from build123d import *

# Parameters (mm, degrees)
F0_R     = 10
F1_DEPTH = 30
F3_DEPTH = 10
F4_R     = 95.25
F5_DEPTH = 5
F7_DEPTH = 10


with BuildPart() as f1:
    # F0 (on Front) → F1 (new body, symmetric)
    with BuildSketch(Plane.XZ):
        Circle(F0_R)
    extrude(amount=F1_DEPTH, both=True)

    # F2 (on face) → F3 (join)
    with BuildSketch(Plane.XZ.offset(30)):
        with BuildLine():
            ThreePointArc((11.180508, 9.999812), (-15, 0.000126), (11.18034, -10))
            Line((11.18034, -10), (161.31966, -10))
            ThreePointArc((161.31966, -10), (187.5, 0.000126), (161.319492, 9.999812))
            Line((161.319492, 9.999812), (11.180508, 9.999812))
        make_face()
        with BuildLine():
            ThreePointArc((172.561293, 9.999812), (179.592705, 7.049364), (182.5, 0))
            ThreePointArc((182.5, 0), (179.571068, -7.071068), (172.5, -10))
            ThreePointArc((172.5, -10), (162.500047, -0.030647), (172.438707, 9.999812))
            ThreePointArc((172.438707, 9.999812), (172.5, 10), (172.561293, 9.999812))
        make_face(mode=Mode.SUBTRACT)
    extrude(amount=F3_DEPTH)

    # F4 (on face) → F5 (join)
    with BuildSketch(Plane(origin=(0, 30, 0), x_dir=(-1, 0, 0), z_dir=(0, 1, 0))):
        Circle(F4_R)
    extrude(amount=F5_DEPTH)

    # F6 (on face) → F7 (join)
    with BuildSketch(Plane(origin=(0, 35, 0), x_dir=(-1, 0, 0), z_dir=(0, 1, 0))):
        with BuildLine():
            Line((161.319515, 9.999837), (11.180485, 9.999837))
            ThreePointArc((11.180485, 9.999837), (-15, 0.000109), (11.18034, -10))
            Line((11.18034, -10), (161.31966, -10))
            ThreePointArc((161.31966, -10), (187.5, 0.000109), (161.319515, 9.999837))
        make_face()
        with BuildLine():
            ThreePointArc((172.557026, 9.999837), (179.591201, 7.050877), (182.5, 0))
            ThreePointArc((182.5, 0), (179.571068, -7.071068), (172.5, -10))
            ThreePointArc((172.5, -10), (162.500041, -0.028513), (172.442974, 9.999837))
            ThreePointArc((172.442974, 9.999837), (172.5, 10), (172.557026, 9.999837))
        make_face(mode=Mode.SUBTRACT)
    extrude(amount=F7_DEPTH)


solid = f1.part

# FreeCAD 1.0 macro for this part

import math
import FreeCAD as App
import Part
import Sketcher
from FreeCAD import Vector

doc = App.newDocument("Part")
body = doc.addObject("PartDesign::Body", "Body")

# Sketch on XZ plane
sketch1 = body.newObject("Sketcher::SketchObject", "Sketch")
sketch1.AttachmentSupport = (doc.getObject("XZ_Plane"), [""])
sketch1.MapMode = "FlatFace"
sketch1.addGeometry(Part.Circle(Vector(0, 0, 0), Vector(0, 0, 1), 10), False)
sketch1.addConstraint([
    Sketcher.Constraint("Coincident", 0, 3, -1, 1),
    Sketcher.Constraint("Diameter", 0, 20.0),
])
pad1 = body.newObject("PartDesign::Pad", "Pad")
pad1.Profile = sketch1
pad1.Length = 60
pad1.Midplane = True

# Sketch on XZ plane
sketch2 = body.newObject("Sketcher::SketchObject", "Sketch001")
sketch2.AttachmentSupport = (doc.getObject("XZ_Plane"), [""])
sketch2.MapMode = "FlatFace"
sketch2.AttachmentOffset = App.Placement(Vector(0, 0, 30), App.Rotation())
sketch2.addGeometry([
    Part.ArcOfCircle(Part.Circle(Vector(0, 0, 0), Vector(0, 0, 1), 15), math.radians(41.809352), math.radians(318.189686)),  # 0
    Part.LineSegment(Vector(11.18034, -10, 0), Vector(161.31966, -10, 0)),  # 1
    Part.ArcOfCircle(Part.Circle(Vector(172.5, 0, 0), Vector(0, 0, 1), 15), math.radians(-138.189686), math.radians(138.190648)),  # 2
    Part.LineSegment(Vector(161.319492, 9.999812, 0), Vector(11.180508, 9.999812, 0)),  # 3
    Part.ArcOfCircle(Part.Circle(Vector(172.5, 0.008332, 0), Vector(0, 0, 1), 9.991668), math.radians(89.648522), math.radians(90.351478)),  # 4
    Part.ArcOfCircle(Part.Circle(Vector(172.5, 0, 0), Vector(0, 0, 1), 10), math.radians(0.000001), math.radians(89.648814)),  # 5
    Part.ArcOfCircle(Part.Circle(Vector(172.500001, -0.000001, 0), Vector(0, 0, 1), 9.999999), math.radians(-90.000004), math.radians(0.000004)),  # 6
    Part.ArcOfCircle(Part.Circle(Vector(172.5, 0, 0), Vector(0, 0, 1), 10), math.radians(90.351185), math.radians(270)),  # 7
], False)
sketch2.addConstraint([
    Sketcher.Constraint("Coincident", 0, 2, 1, 1),
    Sketcher.Constraint("Coincident", 1, 2, 2, 1),
    Sketcher.Constraint("Coincident", 2, 2, 3, 1),
    Sketcher.Constraint("Coincident", 3, 2, 0, 1),
    Sketcher.Constraint("Coincident", 4, 1, 5, 2),
    Sketcher.Constraint("Tangent", 5, 1, 6, 2),
    Sketcher.Constraint("Tangent", 6, 1, 7, 2),
    Sketcher.Constraint("Coincident", 7, 1, 4, 2),
    Sketcher.Constraint("Horizontal", 1),
    Sketcher.Constraint("Horizontal", 3),
    Sketcher.Constraint("Coincident", 0, 3, -1, 1),
    Sketcher.Constraint("Coincident", 5, 3, 2, 3),
    Sketcher.Constraint("Coincident", 7, 3, 2, 3),
    Sketcher.Constraint("Equal", 0, 2),
    Sketcher.Constraint("PointOnObject", 2, 3, -1),
    Sketcher.Constraint("PointOnObject", 5, 1, -1),
    Sketcher.Constraint("Horizontal", 3, 2, 4, 1),
    Sketcher.Constraint("Horizontal", 1, 2, 6, 1),
    Sketcher.Constraint("Horizontal", 4, 1, 7, 1),
    Sketcher.Constraint("Vertical", 7, 3, 6, 1),
    Sketcher.Constraint("Radius", 0, 15.0),
    Sketcher.Constraint("Radius", 5, 10.0),
    Sketcher.Constraint("DistanceX", -1, 1, 2, 3, 172.5),
    Sketcher.Constraint("Radius", 4, 9.991668),
    Sketcher.Constraint("DistanceX", 3, 2, 3, 1, 150.138984),
])
pad2 = body.newObject("PartDesign::Pad", "Pad001")
pad2.Profile = sketch2
pad2.Length = 10

# Sketch on XZ plane
sketch3 = body.newObject("Sketcher::SketchObject", "Sketch002")
sketch3.AttachmentSupport = (doc.getObject("XZ_Plane"), [""])
sketch3.MapMode = "FlatFace"
sketch3.AttachmentOffset = App.Placement(Vector(0, 0, -30), App.Rotation())
sketch3.addGeometry(Part.Circle(Vector(0, 0, 0), Vector(0, 0, 1), 95), False)
sketch3.addConstraint([
    Sketcher.Constraint("Coincident", 0, 3, -1, 1),
    Sketcher.Constraint("Diameter", 0, 190.5),
])
pad3 = body.newObject("PartDesign::Pad", "Pad002")
pad3.Profile = sketch3
pad3.Length = 5
pad3.Reversed = True

# Sketch on XZ plane
sketch4 = body.newObject("Sketcher::SketchObject", "Sketch003")
sketch4.AttachmentSupport = (doc.getObject("XZ_Plane"), [""])
sketch4.MapMode = "FlatFace"
sketch4.AttachmentOffset = App.Placement(Vector(0, 0, -35), App.Rotation())
sketch4.addGeometry([
    Part.LineSegment(Vector(-161.319515, 9.999837, 0), Vector(-11.180485, 9.999837, 0)),  # 0
    Part.ArcOfCircle(Part.Circle(Vector(0, 0, 0), Vector(0, 0, 1), 15), math.radians(-138.189687), math.radians(138.190518)),  # 1
    Part.LineSegment(Vector(-11.18034, -10, 0), Vector(-161.31966, -10, 0)),  # 2
    Part.ArcOfCircle(Part.Circle(Vector(-172.5, 0, 0), Vector(0, 0, 1), 15), math.radians(41.809482), math.radians(318.189687)),  # 3
    Part.ArcOfCircle(Part.Circle(Vector(-172.5, 0.024567, 0), Vector(0, 0, 1), 9.975433), math.radians(89.672459), math.radians(90.327541)),  # 4
    Part.ArcOfCircle(Part.Circle(Vector(-172.5, 0, 0), Vector(0, 0, 1), 10), math.radians(90.326734), math.radians(180)),  # 5
    Part.ArcOfCircle(Part.Circle(Vector(-172.500001, -0.000001, 0), Vector(0, 0, 1), 9.999999), math.radians(179.999996), math.radians(270.000004)),  # 6
    Part.ArcOfCircle(Part.Circle(Vector(-172.5, 0, 0), Vector(0, 0, 1), 10), math.radians(-89.999999), math.radians(89.673262)),  # 7
], False)
sketch4.addConstraint([
    Sketcher.Constraint("Coincident", 0, 2, 1, 2),
    Sketcher.Constraint("Coincident", 1, 1, 2, 1),
    Sketcher.Constraint("Coincident", 2, 2, 3, 2),
    Sketcher.Constraint("Coincident", 3, 1, 0, 1),
    Sketcher.Constraint("Coincident", 4, 2, 5, 1),
    Sketcher.Constraint("Coincident", 5, 2, 6, 1),
    Sketcher.Constraint("Coincident", 6, 2, 7, 1),
    Sketcher.Constraint("Coincident", 7, 2, 4, 1),
    Sketcher.Constraint("Horizontal", 0),
    Sketcher.Constraint("Horizontal", 2),
    Sketcher.Constraint("Coincident", 1, 3, -1, 1),
    Sketcher.Constraint("Coincident", 5, 3, 3, 3),
    Sketcher.Constraint("Coincident", 6, 3, 3, 3),
    Sketcher.Constraint("Coincident", 7, 3, 3, 3),
    Sketcher.Constraint("PointOnObject", 3, 3, -1),
    Sketcher.Constraint("PointOnObject", 5, 2, -1),
    Sketcher.Constraint("Radius", 1, 15.0),
    Sketcher.Constraint("Radius", 3, 15.0),
    Sketcher.Constraint("Radius", 5, 10.0),
    Sketcher.Constraint("DistanceY", 1, 1, -1, 1, 10.0),
    Sketcher.Constraint("DistanceX", 5, 2, 4, 3, 10.0),
    Sketcher.Constraint("DistanceX", 3, 3, -1, 1, 172.5),
    Sketcher.Constraint("DistanceX", 6, 2, -1, 1, 172.5),
    Sketcher.Constraint("Radius", 4, 9.975433),
    Sketcher.Constraint("DistanceX", 0, 1, 0, 2, 150.13903),
    Sketcher.Constraint("DistanceY", 4, 3, 4, 2, 9.97527),
])
pad4 = body.newObject("PartDesign::Pad", "Pad003")
pad4.Profile = sketch4
pad4.Length = 10
pad4.Reversed = True

doc.recompute()
